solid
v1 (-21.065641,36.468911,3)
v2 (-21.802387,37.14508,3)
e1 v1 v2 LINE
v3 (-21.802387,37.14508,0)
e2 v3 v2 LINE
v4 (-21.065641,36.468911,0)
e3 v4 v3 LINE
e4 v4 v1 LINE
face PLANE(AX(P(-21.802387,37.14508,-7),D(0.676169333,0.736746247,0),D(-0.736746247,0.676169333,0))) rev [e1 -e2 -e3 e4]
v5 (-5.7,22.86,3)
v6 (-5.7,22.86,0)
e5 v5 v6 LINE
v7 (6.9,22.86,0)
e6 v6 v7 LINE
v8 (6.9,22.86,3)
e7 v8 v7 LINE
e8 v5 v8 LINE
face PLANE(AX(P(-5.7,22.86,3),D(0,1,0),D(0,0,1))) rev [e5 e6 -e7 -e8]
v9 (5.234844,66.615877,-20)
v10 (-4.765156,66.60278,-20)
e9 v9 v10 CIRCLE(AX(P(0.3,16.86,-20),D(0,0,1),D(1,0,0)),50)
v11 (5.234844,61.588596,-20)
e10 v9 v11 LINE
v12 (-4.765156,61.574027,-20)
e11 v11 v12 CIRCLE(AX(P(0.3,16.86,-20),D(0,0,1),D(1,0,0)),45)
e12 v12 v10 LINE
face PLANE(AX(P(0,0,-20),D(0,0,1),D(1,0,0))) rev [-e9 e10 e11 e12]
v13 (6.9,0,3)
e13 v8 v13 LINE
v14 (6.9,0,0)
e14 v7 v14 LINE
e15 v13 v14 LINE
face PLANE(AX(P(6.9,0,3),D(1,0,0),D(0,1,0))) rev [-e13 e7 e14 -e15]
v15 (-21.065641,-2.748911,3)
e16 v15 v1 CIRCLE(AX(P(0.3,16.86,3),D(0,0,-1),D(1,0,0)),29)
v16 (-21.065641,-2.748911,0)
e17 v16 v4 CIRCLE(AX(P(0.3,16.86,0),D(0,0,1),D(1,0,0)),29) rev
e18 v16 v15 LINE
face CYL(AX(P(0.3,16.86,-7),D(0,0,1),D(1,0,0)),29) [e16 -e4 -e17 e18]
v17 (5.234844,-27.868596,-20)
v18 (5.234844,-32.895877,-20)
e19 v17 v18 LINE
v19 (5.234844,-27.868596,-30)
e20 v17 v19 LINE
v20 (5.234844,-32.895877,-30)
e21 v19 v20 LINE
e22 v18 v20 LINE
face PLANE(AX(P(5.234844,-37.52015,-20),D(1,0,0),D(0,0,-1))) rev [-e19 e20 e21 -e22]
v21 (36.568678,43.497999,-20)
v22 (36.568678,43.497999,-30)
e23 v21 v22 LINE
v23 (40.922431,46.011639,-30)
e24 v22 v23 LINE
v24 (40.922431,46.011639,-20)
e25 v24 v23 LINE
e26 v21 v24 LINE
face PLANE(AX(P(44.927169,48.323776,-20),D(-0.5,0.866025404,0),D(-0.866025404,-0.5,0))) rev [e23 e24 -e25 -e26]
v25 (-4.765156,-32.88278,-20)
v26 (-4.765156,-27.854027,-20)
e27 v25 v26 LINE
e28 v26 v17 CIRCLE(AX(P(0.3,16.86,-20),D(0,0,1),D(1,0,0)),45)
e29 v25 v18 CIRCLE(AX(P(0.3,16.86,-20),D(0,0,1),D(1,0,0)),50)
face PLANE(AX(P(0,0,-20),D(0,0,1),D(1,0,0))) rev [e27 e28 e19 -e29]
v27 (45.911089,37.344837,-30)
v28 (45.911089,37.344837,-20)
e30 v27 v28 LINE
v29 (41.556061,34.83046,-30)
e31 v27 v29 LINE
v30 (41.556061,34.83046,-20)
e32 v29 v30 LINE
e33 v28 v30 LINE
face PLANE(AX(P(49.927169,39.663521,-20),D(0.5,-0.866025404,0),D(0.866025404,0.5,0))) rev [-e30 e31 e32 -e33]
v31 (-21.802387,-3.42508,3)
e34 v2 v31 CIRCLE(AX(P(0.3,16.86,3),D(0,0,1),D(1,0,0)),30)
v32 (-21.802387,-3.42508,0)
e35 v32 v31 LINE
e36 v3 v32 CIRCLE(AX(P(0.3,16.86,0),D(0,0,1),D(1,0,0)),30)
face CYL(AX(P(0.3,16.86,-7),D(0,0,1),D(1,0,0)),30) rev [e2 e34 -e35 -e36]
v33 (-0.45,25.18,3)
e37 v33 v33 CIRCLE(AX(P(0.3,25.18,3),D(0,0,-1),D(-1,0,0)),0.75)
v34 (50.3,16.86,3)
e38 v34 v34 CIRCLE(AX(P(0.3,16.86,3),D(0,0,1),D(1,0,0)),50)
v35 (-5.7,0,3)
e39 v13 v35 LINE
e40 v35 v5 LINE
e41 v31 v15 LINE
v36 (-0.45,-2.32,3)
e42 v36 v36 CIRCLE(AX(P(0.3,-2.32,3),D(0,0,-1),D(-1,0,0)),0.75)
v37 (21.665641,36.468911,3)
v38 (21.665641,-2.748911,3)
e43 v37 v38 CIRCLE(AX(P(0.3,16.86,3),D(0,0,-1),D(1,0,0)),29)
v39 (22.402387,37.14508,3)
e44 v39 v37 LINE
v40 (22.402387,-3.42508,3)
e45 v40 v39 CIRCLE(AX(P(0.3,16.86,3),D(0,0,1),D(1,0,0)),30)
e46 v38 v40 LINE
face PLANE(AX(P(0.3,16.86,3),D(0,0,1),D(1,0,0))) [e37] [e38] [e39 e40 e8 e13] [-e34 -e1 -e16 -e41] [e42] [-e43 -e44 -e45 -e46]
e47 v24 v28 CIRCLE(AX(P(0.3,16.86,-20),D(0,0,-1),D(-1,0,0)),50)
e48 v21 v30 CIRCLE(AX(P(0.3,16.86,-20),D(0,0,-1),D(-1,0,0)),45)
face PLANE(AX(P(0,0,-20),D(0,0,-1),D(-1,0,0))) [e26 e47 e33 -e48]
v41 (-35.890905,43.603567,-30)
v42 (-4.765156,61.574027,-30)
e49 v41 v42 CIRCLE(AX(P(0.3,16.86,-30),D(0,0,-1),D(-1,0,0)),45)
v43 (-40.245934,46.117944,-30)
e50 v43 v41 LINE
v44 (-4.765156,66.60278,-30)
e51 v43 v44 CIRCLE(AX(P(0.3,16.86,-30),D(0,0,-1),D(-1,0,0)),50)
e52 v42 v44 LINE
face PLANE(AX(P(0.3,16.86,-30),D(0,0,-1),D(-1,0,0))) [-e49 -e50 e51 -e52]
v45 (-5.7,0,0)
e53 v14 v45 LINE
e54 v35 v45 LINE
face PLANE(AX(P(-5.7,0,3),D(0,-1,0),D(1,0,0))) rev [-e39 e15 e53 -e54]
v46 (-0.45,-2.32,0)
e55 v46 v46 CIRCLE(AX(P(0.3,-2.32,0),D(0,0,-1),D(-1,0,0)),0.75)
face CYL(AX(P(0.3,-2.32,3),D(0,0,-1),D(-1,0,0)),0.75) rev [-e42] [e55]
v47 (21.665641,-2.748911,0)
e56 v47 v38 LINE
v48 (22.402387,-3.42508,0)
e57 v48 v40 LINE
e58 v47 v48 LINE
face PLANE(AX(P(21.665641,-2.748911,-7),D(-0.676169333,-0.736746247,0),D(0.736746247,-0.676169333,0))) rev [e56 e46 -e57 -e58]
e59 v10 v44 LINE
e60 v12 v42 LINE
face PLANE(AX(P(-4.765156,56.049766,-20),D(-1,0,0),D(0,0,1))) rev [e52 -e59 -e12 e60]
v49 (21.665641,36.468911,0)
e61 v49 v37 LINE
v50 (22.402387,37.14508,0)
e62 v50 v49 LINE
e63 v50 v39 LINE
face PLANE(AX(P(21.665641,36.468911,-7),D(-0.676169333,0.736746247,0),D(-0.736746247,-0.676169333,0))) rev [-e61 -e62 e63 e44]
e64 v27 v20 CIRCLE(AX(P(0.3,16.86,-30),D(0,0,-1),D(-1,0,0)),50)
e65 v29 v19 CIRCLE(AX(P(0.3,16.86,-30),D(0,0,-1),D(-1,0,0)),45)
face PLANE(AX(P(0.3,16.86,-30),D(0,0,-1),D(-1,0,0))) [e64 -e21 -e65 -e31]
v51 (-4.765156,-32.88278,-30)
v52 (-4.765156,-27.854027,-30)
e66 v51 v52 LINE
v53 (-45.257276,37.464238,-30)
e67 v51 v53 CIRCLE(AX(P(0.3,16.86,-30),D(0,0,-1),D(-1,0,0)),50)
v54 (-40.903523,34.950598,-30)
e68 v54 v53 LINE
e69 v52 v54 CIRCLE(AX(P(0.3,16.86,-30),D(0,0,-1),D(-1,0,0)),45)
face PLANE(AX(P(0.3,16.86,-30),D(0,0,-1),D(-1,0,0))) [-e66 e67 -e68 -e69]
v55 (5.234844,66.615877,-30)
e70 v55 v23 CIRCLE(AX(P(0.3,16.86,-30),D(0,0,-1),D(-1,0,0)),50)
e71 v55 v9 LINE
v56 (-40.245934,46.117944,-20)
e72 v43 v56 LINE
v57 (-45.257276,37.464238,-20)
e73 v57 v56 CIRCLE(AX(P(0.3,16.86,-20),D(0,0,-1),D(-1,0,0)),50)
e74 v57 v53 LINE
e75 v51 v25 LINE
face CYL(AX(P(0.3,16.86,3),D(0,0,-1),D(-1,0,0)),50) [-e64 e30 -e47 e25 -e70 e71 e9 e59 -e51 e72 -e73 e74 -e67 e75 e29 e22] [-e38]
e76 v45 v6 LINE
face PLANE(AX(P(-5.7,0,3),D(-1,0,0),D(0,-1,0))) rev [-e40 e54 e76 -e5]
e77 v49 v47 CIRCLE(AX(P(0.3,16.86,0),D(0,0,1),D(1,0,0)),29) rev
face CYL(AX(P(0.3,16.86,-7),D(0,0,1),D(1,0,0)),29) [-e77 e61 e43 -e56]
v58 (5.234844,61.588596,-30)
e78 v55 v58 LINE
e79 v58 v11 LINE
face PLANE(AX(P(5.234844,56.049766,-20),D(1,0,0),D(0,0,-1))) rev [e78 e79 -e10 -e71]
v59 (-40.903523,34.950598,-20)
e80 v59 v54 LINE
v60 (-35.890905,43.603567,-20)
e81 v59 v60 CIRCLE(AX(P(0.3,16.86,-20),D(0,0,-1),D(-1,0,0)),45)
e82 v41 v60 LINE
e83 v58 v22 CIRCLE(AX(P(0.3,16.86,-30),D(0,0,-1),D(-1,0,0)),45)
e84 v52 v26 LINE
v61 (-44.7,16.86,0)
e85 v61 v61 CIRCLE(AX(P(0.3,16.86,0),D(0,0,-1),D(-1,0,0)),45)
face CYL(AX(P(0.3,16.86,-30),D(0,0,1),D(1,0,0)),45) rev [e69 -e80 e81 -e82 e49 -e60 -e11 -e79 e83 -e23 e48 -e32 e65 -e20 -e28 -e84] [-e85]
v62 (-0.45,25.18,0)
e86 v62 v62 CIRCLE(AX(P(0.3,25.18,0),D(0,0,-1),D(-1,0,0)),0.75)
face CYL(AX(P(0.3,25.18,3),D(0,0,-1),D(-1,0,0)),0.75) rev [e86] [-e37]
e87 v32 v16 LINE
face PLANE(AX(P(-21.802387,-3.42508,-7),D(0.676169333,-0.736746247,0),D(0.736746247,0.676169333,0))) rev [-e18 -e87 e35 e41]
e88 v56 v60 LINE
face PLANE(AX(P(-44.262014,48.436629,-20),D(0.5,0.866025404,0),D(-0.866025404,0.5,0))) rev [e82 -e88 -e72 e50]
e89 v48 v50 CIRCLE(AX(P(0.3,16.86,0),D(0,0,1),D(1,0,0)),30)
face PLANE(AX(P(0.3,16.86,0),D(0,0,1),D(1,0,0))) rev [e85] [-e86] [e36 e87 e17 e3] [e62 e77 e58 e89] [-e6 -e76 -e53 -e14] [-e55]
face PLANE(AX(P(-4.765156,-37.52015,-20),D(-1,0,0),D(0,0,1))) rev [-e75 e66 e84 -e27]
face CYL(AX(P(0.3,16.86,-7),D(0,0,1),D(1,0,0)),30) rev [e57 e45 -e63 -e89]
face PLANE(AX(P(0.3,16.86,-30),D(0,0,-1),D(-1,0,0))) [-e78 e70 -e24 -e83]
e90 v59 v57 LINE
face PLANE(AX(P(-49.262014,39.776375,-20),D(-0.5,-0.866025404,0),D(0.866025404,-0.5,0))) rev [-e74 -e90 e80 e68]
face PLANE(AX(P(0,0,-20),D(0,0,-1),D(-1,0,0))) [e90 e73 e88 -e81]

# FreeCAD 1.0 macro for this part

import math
import FreeCAD as App
import Part
import Sketcher
from FreeCAD import Vector
Q = App.Units.Quantity


def add_polygon(sketch, points):
    """Adds a closed chain of lines whose ends are joined by coincident constraints."""
    first, n = sketch.GeometryCount, len(points)
    for a, b in zip(points, points[1:] + points[:1]):
        sketch.addGeometry(Part.LineSegment(App.Vector(*a, 0), App.Vector(*b, 0)), False)
    for i in range(n):
        sketch.addConstraint(Sketcher.Constraint("Coincident", first + i, 2, first + (i + 1) % n, 1))

doc = App.newDocument("Part")
body = doc.addObject("PartDesign::Body", "Body")

# Sketch on XY plane
sketch1 = body.newObject("Sketcher::SketchObject", "Sketch")
sketch1.AttachmentSupport = (doc.getObject("XY_Plane"), [""])
sketch1.MapMode = "FlatFace"
sketch1.addGeometry(Part.Circle(Vector(0, 17, 0), Vector(0, 0, 1), 50), False)
sketch1.addConstraint([
    Sketcher.Constraint("Diameter", 0, Q("100 mm")),
    Sketcher.Constraint("DistanceX", -1, 1, 0, 3, Q("0.3 mm")),
    Sketcher.Constraint("DistanceY", -1, 1, 0, 3, Q("16.86 mm")),
])
pad1 = body.newObject("PartDesign::Pad", "Pad")
pad1.Profile = sketch1
pad1.Length = 3

# Sketch on XY plane
sketch2 = body.newObject("Sketcher::SketchObject", "Sketch001")
sketch2.AttachmentSupport = (doc.getObject("XY_Plane"), [""])
sketch2.MapMode = "FlatFace"
sketch2.AttachmentOffset = App.Placement(Vector(0, 0, -30), App.Rotation())
sketch2.addGeometry([
    Part.Circle(Vector(0, 17, 0), Vector(0, 0, 1), 50),
    Part.Circle(Vector(0, 17, 0), Vector(0, 0, 1), 45),
], False)
sketch2.addConstraint([
    Sketcher.Constraint("Coincident", 1, 3, 0, 3),
    Sketcher.Constraint("Diameter", 0, Q("100 mm")),
    Sketcher.Constraint("Diameter", 1, Q("90 mm")),
    Sketcher.Constraint("DistanceX", -1, 1, 0, 3, Q("0.3 mm")),
    Sketcher.Constraint("DistanceY", -1, 1, 0, 3, Q("16.86 mm")),
])
pad2 = body.newObject("PartDesign::Pad", "Pad001")
pad2.Profile = sketch2
pad2.Length = 30

# Sketch on XY plane
sketch3 = body.newObject("Sketcher::SketchObject", "Sketch002")
sketch3.AttachmentSupport = (doc.getObject("XY_Plane"), [""])
sketch3.MapMode = "FlatFace"
sketch3.AttachmentOffset = App.Placement(Vector(0, 0, -30), App.Rotation())
add_polygon(sketch3, [(33, 41), (45, 48), (50, 40), (38, 33)])  # lines 0-3
add_polygon(sketch3, [(5, -24), (5, -38), (-5, -38), (-5, -24)])  # lines 4-7
add_polygon(sketch3, [(-37, 33), (-49, 40), (-44, 48), (-32, 41)])  # lines 8-11
add_polygon(sketch3, [(5, 73), (5, 56), (-5, 56), (-5, 73)])  # lines 12-15
sketch3.addConstraint([
    Sketcher.Constraint("Vertical", 4),
    Sketcher.Constraint("Horizontal", 5),
    Sketcher.Constraint("Vertical", 6),
    Sketcher.Constraint("Horizontal", 7),
    Sketcher.Constraint("Vertical", 12),
    Sketcher.Constraint("Horizontal", 13),
    Sketcher.Constraint("Vertical", 14),
    Sketcher.Constraint("Horizontal", 15),
    Sketcher.Constraint("Perpendicular", 0, 1),
    Sketcher.Constraint("Perpendicular", 1, 2),
    Sketcher.Constraint("Perpendicular", 2, 3),
    Sketcher.Constraint("Perpendicular", 8, 9),
    Sketcher.Constraint("Perpendicular", 9, 10),
    Sketcher.Constraint("Perpendicular", 10, 11),
    Sketcher.Constraint("Vertical", 7, 2, 12, 2),
    Sketcher.Constraint("Vertical", 6, 2, 13, 2),
    Sketcher.Constraint("Equal", 2, 8),
    Sketcher.Constraint("Equal", 3, 9),
    Sketcher.Constraint("DistanceX", 5, 2, 5, 1, Q("10 mm")),
    Sketcher.Constraint("Angle", 0, Q("30 deg")),
    Sketcher.Constraint("Angle", 8, Q("150 deg")),
    Sketcher.Constraint("Distance", 1, Q("10 mm")),
    Sketcher.Constraint("DistanceY", 4, 2, 4, 1, Q("13.96902 mm")),
    Sketcher.Constraint("DistanceY", 12, 2, 12, 1, Q("16.825931 mm")),
    Sketcher.Constraint("DistanceX", 4, 2, 2, 2, Q("32.594799 mm")),
    Sketcher.Constraint("DistanceY", 11, 2, 3, 2, Q("8.547401 mm")),
    Sketcher.Constraint("DistanceY", 3, 2, 12, 2, Q("14.710501 mm")),
    Sketcher.Constraint("Distance", 0, Q("13.96902 mm")),
    Sketcher.Constraint("DistanceX", -1, 1, 0, 2, Q("44.927169 mm")),
    Sketcher.Constraint("DistanceY", -1, 1, 1, 2, Q("39.663521 mm")),
    Sketcher.Constraint("DistanceY", 4, 2, -1, 1, Q("37.52015 mm")),
    Sketcher.Constraint("DistanceX", 10, 2, 3, 2, Q("64.994131 mm")),
])
pocket1 = body.newObject("PartDesign::Pocket", "Pocket")
pocket1.Profile = sketch3
pocket1.Length = 10
pocket1.Reversed = True

# Sketch on XY plane
sketch4 = body.newObject("Sketcher::SketchObject", "Sketch003")
sketch4.AttachmentSupport = (doc.getObject("XY_Plane"), [""])
sketch4.MapMode = "FlatFace"
sketch4.addGeometry(Part.Circle(Vector(0.3, -2.3, 0), Vector(0, 0, 1), 0.8), False)  # 0
sketch4.addGeometry(Part.Circle(Vector(0.3, 25.2, 0), Vector(0, 0, 1), 0.8), False)  # 1
add_polygon(sketch4, [(6.9, 22.9), (6.9, 0), (-5.7, 0), (-5.7, 22.9)])  # lines 2-5
sketch4.addConstraint([
    Sketcher.Constraint("Vertical", 2),
    Sketcher.Constraint("Horizontal", 3),
    Sketcher.Constraint("Vertical", 4),
    Sketcher.Constraint("Horizontal", 5),
    Sketcher.Constraint("Equal", 0, 1),
    Sketcher.Constraint("PointOnObject", 2, 2, -1),
    Sketcher.Constraint("Vertical", 0, 3, 1, 3),
    Sketcher.Constraint("Diameter", 0, Q("1.5 mm")),
    Sketcher.Constraint("DistanceX", 3, 2, 3, 1, Q("12.6 mm")),
    Sketcher.Constraint("DistanceX", 3, 2, 0, 3, Q("6 mm")),
    Sketcher.Constraint("DistanceY", 2, 2, 2, 1, Q("22.86 mm")),
    Sketcher.Constraint("DistanceX", -1, 1, 0, 3, Q("0.3 mm")),
    Sketcher.Constraint("DistanceY", 0, 3, 1, 3, Q("27.5 mm")),
    Sketcher.Constraint("DistanceY", 0, 3, -1, 1, Q("2.32 mm")),
])
pocket2 = body.newObject("PartDesign::Pocket", "Pocket001")
pocket2.Profile = sketch4
pocket2.Type = "ThroughAll"
pocket2.Reversed = True

# Sketch on XY plane
sketch5 = body.newObject("Sketcher::SketchObject", "Sketch004")
sketch5.AttachmentSupport = (doc.getObject("XY_Plane"), [""])
sketch5.MapMode = "FlatFace"
sketch5.AttachmentOffset = App.Placement(Vector(0, 0, 3), App.Rotation())
sketch5.addGeometry([
    Part.LineSegment(Vector(-21.1, 36.5, 0), Vector(-21.8, 37.1, 0)),  # 0
    Part.ArcOfCircle(Part.Circle(Vector(0.3, 16.9, 0), Vector(0, 0, 1), 30), math.radians(137), math.radians(223)),  # 1
    Part.LineSegment(Vector(-21.8, -3.4, 0), Vector(-21.1, -2.7, 0)),  # 2
    Part.ArcOfCircle(Part.Circle(Vector(0.3, 16.9, 0), Vector(0, 0, 1), 29), math.radians(137), math.radians(223)),  # 3
    Part.LineSegment(Vector(21.7, -2.7, 0), Vector(22.4, -3.4, 0)),  # 4
    Part.ArcOfCircle(Part.Circle(Vector(0.3, 16.9, 0), Vector(0, 0, 1), 30), math.radians(-43), math.radians(43)),  # 5
    Part.LineSegment(Vector(22.4, 37.1, 0), Vector(21.7, 36.5, 0)),  # 6
    Part.ArcOfCircle(Part.Circle(Vector(0.3, 16.9, 0), Vector(0, 0, 1), 29), math.radians(-43), math.radians(43)),  # 7
], False)
sketch5.addConstraint([
    Sketcher.Constraint("Coincident", 0, 2, 1, 1),
    Sketcher.Constraint("Coincident", 1, 2, 2, 1),
    Sketcher.Constraint("Coincident", 2, 2, 3, 2),
    Sketcher.Constraint("Coincident", 3, 1, 0, 1),
    Sketcher.Constraint("Coincident", 4, 2, 5, 1),
    Sketcher.Constraint("Coincident", 5, 2, 6, 1),
    Sketcher.Constraint("Coincident", 6, 2, 7, 2),
    Sketcher.Constraint("Coincident", 7, 1, 4, 1),
    Sketcher.Constraint("Coincident", 3, 3, 1, 3),
    Sketcher.Constraint("Coincident", 5, 3, 1, 3),
    Sketcher.Constraint("Coincident", 7, 3, 1, 3),
    Sketcher.Constraint("Equal", 1, 5),
    Sketcher.Constraint("Equal", 3, 7),
    Sketcher.Constraint("Parallel", 0, 4),
    Sketcher.Constraint("Parallel", 2, 6),
    Sketcher.Constraint("Horizontal", 1, 2, 4, 2),
    Sketcher.Constraint("Horizontal", 0, 2, 5, 2),
    Sketcher.Constraint("Horizontal", 3, 1, 6, 2),
    Sketcher.Constraint("Vertical", 0, 2, 1, 2),
    Sketcher.Constraint("Radius", 1, Q("30 mm")),
    Sketcher.Constraint("Radius", 3, Q("29 mm")),
    Sketcher.Constraint("DistanceX", -1, 1, 1, 3, Q("0.3 mm")),
    Sketcher.Constraint("DistanceY", -1, 1, 1, 3, Q("16.86 mm")),
    Sketcher.Constraint("DistanceY", -1, 1, 0, 2, Q("37.14508 mm")),
    Sketcher.Constraint("DistanceX", 2, 2, -1, 1, Q("21.065641 mm")),
])
pocket3 = body.newObject("PartDesign::Pocket", "Pocket002")
pocket3.Profile = sketch5
pocket3.Length = 10

doc.recompute()
